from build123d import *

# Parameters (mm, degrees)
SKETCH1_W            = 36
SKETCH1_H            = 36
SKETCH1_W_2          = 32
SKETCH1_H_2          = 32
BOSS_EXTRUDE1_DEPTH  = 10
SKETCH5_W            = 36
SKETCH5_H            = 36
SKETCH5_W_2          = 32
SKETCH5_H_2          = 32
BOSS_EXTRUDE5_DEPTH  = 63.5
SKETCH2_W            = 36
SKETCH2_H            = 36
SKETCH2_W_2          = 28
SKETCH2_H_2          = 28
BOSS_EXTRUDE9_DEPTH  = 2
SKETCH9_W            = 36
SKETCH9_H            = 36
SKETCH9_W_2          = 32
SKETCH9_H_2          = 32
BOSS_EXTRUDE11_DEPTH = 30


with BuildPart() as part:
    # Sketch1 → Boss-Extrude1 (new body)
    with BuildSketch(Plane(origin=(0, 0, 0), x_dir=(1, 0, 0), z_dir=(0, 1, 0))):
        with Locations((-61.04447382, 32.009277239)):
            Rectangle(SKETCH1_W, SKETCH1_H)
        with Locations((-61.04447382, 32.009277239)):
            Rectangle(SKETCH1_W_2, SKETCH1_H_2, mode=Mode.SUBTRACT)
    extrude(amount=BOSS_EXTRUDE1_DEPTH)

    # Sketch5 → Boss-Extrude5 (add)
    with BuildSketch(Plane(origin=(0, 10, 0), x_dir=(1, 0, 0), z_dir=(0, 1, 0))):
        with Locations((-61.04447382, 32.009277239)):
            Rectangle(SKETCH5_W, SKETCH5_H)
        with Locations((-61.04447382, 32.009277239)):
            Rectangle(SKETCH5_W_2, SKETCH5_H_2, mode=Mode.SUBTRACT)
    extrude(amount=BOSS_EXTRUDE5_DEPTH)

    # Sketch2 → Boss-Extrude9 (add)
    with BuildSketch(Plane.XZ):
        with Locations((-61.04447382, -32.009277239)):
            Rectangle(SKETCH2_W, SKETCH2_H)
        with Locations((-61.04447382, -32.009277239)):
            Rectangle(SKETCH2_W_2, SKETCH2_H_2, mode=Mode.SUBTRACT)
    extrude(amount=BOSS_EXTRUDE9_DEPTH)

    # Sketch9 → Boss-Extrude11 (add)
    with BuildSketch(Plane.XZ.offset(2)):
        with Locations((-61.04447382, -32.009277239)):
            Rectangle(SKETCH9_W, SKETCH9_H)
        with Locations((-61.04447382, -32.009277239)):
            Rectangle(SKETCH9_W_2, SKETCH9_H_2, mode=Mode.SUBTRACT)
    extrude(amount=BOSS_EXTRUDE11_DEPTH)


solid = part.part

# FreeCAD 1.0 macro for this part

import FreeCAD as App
import Part
import Sketcher


def add_polygon(sketch, points):
    """Adds a closed chain of lines whose ends are joined by coincident constraints."""
    first, n = sketch.GeometryCount, len(points)
    for a, b in zip(points, points[1:] + points[:1]):
        sketch.addGeometry(Part.LineSegment(App.Vector(*a, 0), App.Vector(*b, 0)), False)
    for i in range(n):
        sketch.addConstraint(Sketcher.Constraint("Coincident", first + i, 2, first + (i + 1) % n, 1))

doc = App.newDocument("Part")
params = doc.addObject("Spreadsheet::Sheet", "Params")
for row, (alias, value) in enumerate([
    ("sketch1_width", "36 mm"),
    ("sketch1_width2", "32 mm"),
    ("pad1_length", "10 mm"),
    ("sketch2_width", "36 mm"),
    ("sketch2_width2", "32 mm"),
    ("pad2_length", "63.5 mm"),
    ("sketch3_width", "36 mm"),
    ("sketch3_width2", "28 mm"),
    ("pad3_length", "2 mm"),
    ("sketch4_width", "36 mm"),
    ("sketch4_width2", "32 mm"),
    ("pad4_length", "30 mm"),
], start=1):
    params.set(f"A{row}", alias)
    params.set(f"B{row}", "=" + value)
    params.setAlias(f"B{row}", alias)

body = doc.addObject("PartDesign::Body", "Body")

# Sketch on XZ plane
sketch1 = body.newObject("Sketcher::SketchObject", "Sketch")
sketch1.AttachmentSupport = (doc.getObject("XZ_Plane"), [""])
sketch1.MapMode = "FlatFace"
add_polygon(sketch1, [(-79, -50), (-79, -14), (-43, -14), (-43, -50)])  # lines 0-3
add_polygon(sketch1, [(-45, -16), (-77, -16), (-77, -48), (-45, -48)])  # lines 4-7
sketch1.addConstraint(Sketcher.Constraint("Vertical", 0))
sketch1.addConstraint(Sketcher.Constraint("Horizontal", 1))
sketch1.addConstraint(Sketcher.Constraint("Vertical", 2))
sketch1.addConstraint(Sketcher.Constraint("Horizontal", 3))
sketch1.addConstraint(Sketcher.Constraint("Horizontal", 4))
sketch1.addConstraint(Sketcher.Constraint("Vertical", 5))
sketch1.addConstraint(Sketcher.Constraint("Horizontal", 6))
sketch1.addConstraint(Sketcher.Constraint("Vertical", 7))
sketch1.addConstraint(Sketcher.Constraint("Equal", 3, 0))
sketch1.addConstraint(Sketcher.Constraint("Equal", 6, 5))
sketch1.addConstraint(Sketcher.Constraint("DistanceX", 1, 1, 1, 2, 36.0))
sketch1.addConstraint(Sketcher.Constraint("DistanceX", 4, 2, 4, 1, 32.0))
sketch1.addConstraint(Sketcher.Constraint("DistanceX", 0, 2, 4, 2, 2.0))
sketch1.addConstraint(Sketcher.Constraint("DistanceY", 4, 2, 0, 2, 2.0))
sketch1.addConstraint(Sketcher.Constraint("DistanceX", 0, 2, -1, 1, 79.044474))
sketch1.addConstraint(Sketcher.Constraint("DistanceY", 0, 2, -1, 1, 14.009277))
sketch1.setExpression("Constraints[18]", "Params.sketch1_width")
sketch1.setExpression("Constraints[19]", "Params.sketch1_width2")
pad1 = body.newObject("PartDesign::Pad", "Pad")
pad1.Profile = sketch1
pad1.setExpression("Length", "Params.pad1_length")
pad1.Reversed = True

# Sketch on XZ plane
sketch2 = body.newObject("Sketcher::SketchObject", "Sketch001")
sketch2.AttachmentSupport = (doc.getObject("XZ_Plane"), [""])
sketch2.MapMode = "FlatFace"
sketch2.AttachmentOffset = App.Placement(App.Vector(0, 0, -10), App.Rotation())
add_polygon(sketch2, [(-79, -50), (-79, -14), (-43, -14), (-43, -50)])  # lines 0-3
add_polygon(sketch2, [(-45, -16), (-77, -16), (-77, -48), (-45, -48)])  # lines 4-7
sketch2.addConstraint(Sketcher.Constraint("Vertical", 0))
sketch2.addConstraint(Sketcher.Constraint("Horizontal", 1))
sketch2.addConstraint(Sketcher.Constraint("Vertical", 2))
sketch2.addConstraint(Sketcher.Constraint("Horizontal", 3))
sketch2.addConstraint(Sketcher.Constraint("Horizontal", 4))
sketch2.addConstraint(Sketcher.Constraint("Vertical", 5))
sketch2.addConstraint(Sketcher.Constraint("Horizontal", 6))
sketch2.addConstraint(Sketcher.Constraint("Vertical", 7))
sketch2.addConstraint(Sketcher.Constraint("Equal", 3, 0))
sketch2.addConstraint(Sketcher.Constraint("Equal", 6, 5))
sketch2.addConstraint(Sketcher.Constraint("DistanceX", 1, 1, 1, 2, 36.0))
sketch2.addConstraint(Sketcher.Constraint("DistanceX", 4, 2, 4, 1, 32.0))
sketch2.addConstraint(Sketcher.Constraint("DistanceX", 0, 2, 4, 2, 2.0))
sketch2.addConstraint(Sketcher.Constraint("DistanceY", 4, 2, 0, 2, 2.0))
sketch2.addConstraint(Sketcher.Constraint("DistanceX", 0, 2, -1, 1, 79.044474))
sketch2.addConstraint(Sketcher.Constraint("DistanceY", 0, 2, -1, 1, 14.009277))
sketch2.setExpression("Constraints[18]", "Params.sketch2_width")
sketch2.setExpression("Constraints[19]", "Params.sketch2_width2")
pad2 = body.newObject("PartDesign::Pad", "Pad001")
pad2.Profile = sketch2
pad2.setExpression("Length", "Params.pad2_length")
pad2.Reversed = True

# Sketch on XZ plane
sketch3 = body.newObject("Sketcher::SketchObject", "Sketch002")
sketch3.AttachmentSupport = (doc.getObject("XZ_Plane"), [""])
sketch3.MapMode = "FlatFace"
add_polygon(sketch3, [(-79, -14), (-79, -50), (-43, -50), (-43, -14)])  # lines 0-3
add_polygon(sketch3, [(-47, -46), (-75, -46), (-75, -18), (-47, -18)])  # lines 4-7
sketch3.addConstraint(Sketcher.Constraint("Vertical", 0))
sketch3.addConstraint(Sketcher.Constraint("Horizontal", 1))
sketch3.addConstraint(Sketcher.Constraint("Vertical", 2))
sketch3.addConstraint(Sketcher.Constraint("Horizontal", 3))
sketch3.addConstraint(Sketcher.Constraint("Horizontal", 4))
sketch3.addConstraint(Sketcher.Constraint("Vertical", 5))
sketch3.addConstraint(Sketcher.Constraint("Horizontal", 6))
sketch3.addConstraint(Sketcher.Constraint("Vertical", 7))
sketch3.addConstraint(Sketcher.Constraint("Equal", 3, 0))
sketch3.addConstraint(Sketcher.Constraint("Equal", 6, 5))
sketch3.addConstraint(Sketcher.Constraint("DistanceX", 1, 1, 1, 2, 36.0))
sketch3.addConstraint(Sketcher.Constraint("DistanceX", 4, 2, 4, 1, 28.0))
sketch3.addConstraint(Sketcher.Constraint("DistanceX", 0, 2, 4, 2, 4.0))
sketch3.addConstraint(Sketcher.Constraint("DistanceY", 0, 2, 4, 2, 4.0))
sketch3.addConstraint(Sketcher.Constraint("DistanceX", 0, 2, -1, 1, 79.044474))
sketch3.addConstraint(Sketcher.Constraint("DistanceY", 0, 2, -1, 1, 50.009277))
sketch3.setExpression("Constraints[18]", "Params.sketch3_width")
sketch3.setExpression("Constraints[19]", "Params.sketch3_width2")
pad3 = body.newObject("PartDesign::Pad", "Pad002")
pad3.Profile = sketch3
pad3.setExpression("Length", "Params.pad3_length")

# Sketch on XZ plane
sketch4 = body.newObject("Sketcher::SketchObject", "Sketch003")
sketch4.AttachmentSupport = (doc.getObject("XZ_Plane"), [""])
sketch4.MapMode = "FlatFace"
sketch4.AttachmentOffset = App.Placement(App.Vector(0, 0, 2), App.Rotation())
add_polygon(sketch4, [(-79, -14), (-79, -50), (-43, -50), (-43, -14)])  # lines 0-3
add_polygon(sketch4, [(-45, -48), (-77, -48), (-77, -16), (-45, -16)])  # lines 4-7
sketch4.addConstraint(Sketcher.Constraint("Vertical", 0))
sketch4.addConstraint(Sketcher.Constraint("Horizontal", 1))
sketch4.addConstraint(Sketcher.Constraint("Vertical", 2))
sketch4.addConstraint(Sketcher.Constraint("Horizontal", 3))
sketch4.addConstraint(Sketcher.Constraint("Horizontal", 4))
sketch4.addConstraint(Sketcher.Constraint("Vertical", 5))
sketch4.addConstraint(Sketcher.Constraint("Horizontal", 6))
sketch4.addConstraint(Sketcher.Constraint("Vertical", 7))
sketch4.addConstraint(Sketcher.Constraint("Equal", 3, 0))
sketch4.addConstraint(Sketcher.Constraint("Equal", 6, 5))
sketch4.addConstraint(Sketcher.Constraint("DistanceX", 1, 1, 1, 2, 36.0))
sketch4.addConstraint(Sketcher.Constraint("DistanceX", 4, 2, 4, 1, 32.0))
sketch4.addConstraint(Sketcher.Constraint("DistanceX", 0, 2, 4, 2, 2.0))
sketch4.addConstraint(Sketcher.Constraint("DistanceY", 0, 2, 4, 2, 2.0))
sketch4.addConstraint(Sketcher.Constraint("DistanceX", 0, 2, -1, 1, 79.044474))
sketch4.addConstraint(Sketcher.Constraint("DistanceY", 0, 2, -1, 1, 50.009277))
sketch4.setExpression("Constraints[18]", "Params.sketch4_width")
sketch4.setExpression("Constraints[19]", "Params.sketch4_width2")
pad4 = body.newObject("PartDesign::Pad", "Pad003")
pad4.Profile = sketch4
pad4.setExpression("Length", "Params.pad4_length")

doc.recompute()
